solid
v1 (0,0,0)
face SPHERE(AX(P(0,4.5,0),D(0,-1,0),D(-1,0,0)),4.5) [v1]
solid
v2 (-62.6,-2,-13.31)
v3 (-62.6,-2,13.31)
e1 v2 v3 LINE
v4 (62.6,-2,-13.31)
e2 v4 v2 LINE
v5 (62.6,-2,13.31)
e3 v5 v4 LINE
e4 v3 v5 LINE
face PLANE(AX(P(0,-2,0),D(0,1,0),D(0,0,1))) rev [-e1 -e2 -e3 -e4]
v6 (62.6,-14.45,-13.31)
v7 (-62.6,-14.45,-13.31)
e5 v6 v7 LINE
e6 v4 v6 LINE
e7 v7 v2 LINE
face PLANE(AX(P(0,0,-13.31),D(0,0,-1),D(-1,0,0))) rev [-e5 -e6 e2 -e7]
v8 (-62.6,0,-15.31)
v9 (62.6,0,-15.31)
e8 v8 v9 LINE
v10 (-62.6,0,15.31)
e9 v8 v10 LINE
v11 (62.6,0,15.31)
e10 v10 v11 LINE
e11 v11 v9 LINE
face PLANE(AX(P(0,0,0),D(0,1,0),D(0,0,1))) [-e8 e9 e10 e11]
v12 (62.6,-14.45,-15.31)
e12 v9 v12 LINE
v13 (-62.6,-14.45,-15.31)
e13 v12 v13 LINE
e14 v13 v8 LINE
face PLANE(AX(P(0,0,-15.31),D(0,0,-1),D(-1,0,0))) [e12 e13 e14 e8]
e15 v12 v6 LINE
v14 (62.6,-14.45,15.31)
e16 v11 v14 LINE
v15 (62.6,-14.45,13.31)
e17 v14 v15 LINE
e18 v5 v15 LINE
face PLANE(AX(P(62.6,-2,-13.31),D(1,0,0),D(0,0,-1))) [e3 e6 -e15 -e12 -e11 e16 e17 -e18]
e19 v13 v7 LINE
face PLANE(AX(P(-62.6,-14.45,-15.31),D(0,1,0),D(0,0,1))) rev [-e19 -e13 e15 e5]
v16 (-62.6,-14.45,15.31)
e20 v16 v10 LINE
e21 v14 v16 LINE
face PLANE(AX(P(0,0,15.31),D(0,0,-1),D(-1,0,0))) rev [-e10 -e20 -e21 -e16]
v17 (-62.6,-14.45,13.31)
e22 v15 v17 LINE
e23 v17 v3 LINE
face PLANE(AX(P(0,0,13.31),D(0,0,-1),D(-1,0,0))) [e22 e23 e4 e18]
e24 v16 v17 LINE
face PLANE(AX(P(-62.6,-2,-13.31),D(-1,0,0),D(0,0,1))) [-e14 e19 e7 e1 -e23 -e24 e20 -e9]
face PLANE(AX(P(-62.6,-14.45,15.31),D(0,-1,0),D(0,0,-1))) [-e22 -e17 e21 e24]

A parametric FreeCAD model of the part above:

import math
import FreeCAD as App
import Part
import Sketcher
Q = App.Units.Quantity


def add_polygon(sketch, points):
    """Adds a closed chain of lines whose ends are joined by coincident constraints."""
    first, n = sketch.GeometryCount, len(points)
    for a, b in zip(points, points[1:] + points[:1]):
        sketch.addGeometry(Part.LineSegment(App.Vector(*a, 0), App.Vector(*b, 0)), False)
    for i in range(n):
        sketch.addConstraint(Sketcher.Constraint("Coincident", first + i, 2, first + (i + 1) % n, 1))

doc = App.newDocument("Part")
body = doc.addObject("PartDesign::Body", "Body")

sketch1 = doc.addObject("Sketcher::SketchObject", "Sketch")
body.addObject(sketch1)
sketch1.AttachmentSupport = (doc.XY_Plane, [""])
sketch1.MapMode = "FlatFace"
sketch1.addGeometry(Part.LineSegment(App.Vector(0, 0, 0), App.Vector(0, 9, 0)), False)
sketch1.addGeometry(Part.ArcOfCircle(Part.Circle(App.Vector(0, 4.5, 0), App.Vector(0, 0, 1), 4.5), math.radians(90), math.radians(270)), False)
sketch1.addConstraint(Sketcher.Constraint("Coincident", 0, 1, 1, 2))
sketch1.addConstraint(Sketcher.Constraint("Coincident", 1, 1, 0, 2))
sketch1.addConstraint(Sketcher.Constraint("Vertical", 0))
sketch1.addConstraint(Sketcher.Constraint("Coincident", 0, 1, -1, 1))
sketch1.addConstraint(Sketcher.Constraint("PointOnObject", 1, 3, -2))
sketch1.addConstraint(Sketcher.Constraint("Radius", 1, Q("4.5 mm")))
revolution = doc.addObject("PartDesign::Revolution", "Revolution")
body.addObject(revolution)
revolution.Profile = sketch1
revolution.ReferenceAxis = (sketch1, ["V_Axis"])
revolution.Angle = 360
body2 = doc.addObject("PartDesign::Body", "Body001")

sketch2 = doc.addObject("Sketcher::SketchObject", "Sketch001")
body2.addObject(sketch2)
sketch2.AttachmentSupport = (doc.getObject("XZ_Plane001"), [""])
sketch2.MapMode = "FlatFace"
add_polygon(sketch2, [(-63, -13), (-63, 13), (63, 13), (63, -13)])
sketch2.addConstraint(Sketcher.Constraint("Vertical", 0))
sketch2.addConstraint(Sketcher.Constraint("Horizontal", 1))
sketch2.addConstraint(Sketcher.Constraint("Vertical", 2))
sketch2.addConstraint(Sketcher.Constraint("Horizontal", 3))
sketch2.addConstraint(Sketcher.Constraint("Symmetric", 0, 2, 2, 2, -1, 1))
sketch2.addConstraint(Sketcher.Constraint("DistanceX", 1, 1, 1, 2, Q("125.2 mm")))
sketch2.addConstraint(Sketcher.Constraint("DistanceY", 0, 1, 0, 2, Q("26.62 mm")))
pad1 = doc.addObject("PartDesign::Pad", "Pad")
body2.addObject(pad1)
pad1.Profile = sketch2
pad1.Length = 2

sketch3 = doc.addObject("Sketcher::SketchObject", "Sketch002")
body2.addObject(sketch3)
sketch3.AttachmentSupport = (doc.getObject("XY_Plane001"), [""])
sketch3.MapMode = "FlatFace"
sketch3.AttachmentOffset = App.Placement(App.Vector(0, 0, 13.31), App.Rotation())
add_polygon(sketch3, [(-63, 0), (-63, -14), (63, -14), (63, 0)])
sketch3.addConstraint(Sketcher.Constraint("Vertical", 0))
sketch3.addConstraint(Sketcher.Constraint("Horizontal", 1))
sketch3.addConstraint(Sketcher.Constraint("Vertical", 2))
sketch3.addConstraint(Sketcher.Constraint("Horizontal", 3))
sketch3.addConstraint(Sketcher.Constraint("Symmetric", 2, 2, 3, 2, -1, 1))
sketch3.addConstraint(Sketcher.Constraint("DistanceX", 1, 1, 1, 2, Q("125.2 mm")))
sketch3.addConstraint(Sketcher.Constraint("DistanceY", 0, 2, 0, 1, Q("14.45 mm")))
pad2 = doc.addObject("PartDesign::Pad", "Pad001")
body2.addObject(pad2)
pad2.Profile = sketch3
pad2.Length = 2

sketch4 = doc.addObject("Sketcher::SketchObject", "Sketch003")
body2.addObject(sketch4)
sketch4.AttachmentSupport = (doc.getObject("XY_Plane001"), [""])
sketch4.MapMode = "FlatFace"
sketch4.AttachmentOffset = App.Placement(App.Vector(0, 0, -13.31), App.Rotation())
add_polygon(sketch4, [(-63, 0), (-63, -14), (63, -14), (63, 0)])
sketch4.addConstraint(Sketcher.Constraint("Vertical", 0))
sketch4.addConstraint(Sketcher.Constraint("Horizontal", 1))
sketch4.addConstraint(Sketcher.Constraint("Vertical", 2))
sketch4.addConstraint(Sketcher.Constraint("Horizontal", 3))
sketch4.addConstraint(Sketcher.Constraint("Symmetric", 2, 2, 3, 2, -1, 1))
sketch4.addConstraint(Sketcher.Constraint("DistanceX", 1, 1, 1, 2, Q("125.2 mm")))
sketch4.addConstraint(Sketcher.Constraint("DistanceY", 0, 2, 0, 1, Q("14.45 mm")))
pad3 = doc.addObject("PartDesign::Pad", "Pad002")
body2.addObject(pad3)
pad3.Profile = sketch4
pad3.Length = 2
pad3.Reversed = True

doc.recompute()
